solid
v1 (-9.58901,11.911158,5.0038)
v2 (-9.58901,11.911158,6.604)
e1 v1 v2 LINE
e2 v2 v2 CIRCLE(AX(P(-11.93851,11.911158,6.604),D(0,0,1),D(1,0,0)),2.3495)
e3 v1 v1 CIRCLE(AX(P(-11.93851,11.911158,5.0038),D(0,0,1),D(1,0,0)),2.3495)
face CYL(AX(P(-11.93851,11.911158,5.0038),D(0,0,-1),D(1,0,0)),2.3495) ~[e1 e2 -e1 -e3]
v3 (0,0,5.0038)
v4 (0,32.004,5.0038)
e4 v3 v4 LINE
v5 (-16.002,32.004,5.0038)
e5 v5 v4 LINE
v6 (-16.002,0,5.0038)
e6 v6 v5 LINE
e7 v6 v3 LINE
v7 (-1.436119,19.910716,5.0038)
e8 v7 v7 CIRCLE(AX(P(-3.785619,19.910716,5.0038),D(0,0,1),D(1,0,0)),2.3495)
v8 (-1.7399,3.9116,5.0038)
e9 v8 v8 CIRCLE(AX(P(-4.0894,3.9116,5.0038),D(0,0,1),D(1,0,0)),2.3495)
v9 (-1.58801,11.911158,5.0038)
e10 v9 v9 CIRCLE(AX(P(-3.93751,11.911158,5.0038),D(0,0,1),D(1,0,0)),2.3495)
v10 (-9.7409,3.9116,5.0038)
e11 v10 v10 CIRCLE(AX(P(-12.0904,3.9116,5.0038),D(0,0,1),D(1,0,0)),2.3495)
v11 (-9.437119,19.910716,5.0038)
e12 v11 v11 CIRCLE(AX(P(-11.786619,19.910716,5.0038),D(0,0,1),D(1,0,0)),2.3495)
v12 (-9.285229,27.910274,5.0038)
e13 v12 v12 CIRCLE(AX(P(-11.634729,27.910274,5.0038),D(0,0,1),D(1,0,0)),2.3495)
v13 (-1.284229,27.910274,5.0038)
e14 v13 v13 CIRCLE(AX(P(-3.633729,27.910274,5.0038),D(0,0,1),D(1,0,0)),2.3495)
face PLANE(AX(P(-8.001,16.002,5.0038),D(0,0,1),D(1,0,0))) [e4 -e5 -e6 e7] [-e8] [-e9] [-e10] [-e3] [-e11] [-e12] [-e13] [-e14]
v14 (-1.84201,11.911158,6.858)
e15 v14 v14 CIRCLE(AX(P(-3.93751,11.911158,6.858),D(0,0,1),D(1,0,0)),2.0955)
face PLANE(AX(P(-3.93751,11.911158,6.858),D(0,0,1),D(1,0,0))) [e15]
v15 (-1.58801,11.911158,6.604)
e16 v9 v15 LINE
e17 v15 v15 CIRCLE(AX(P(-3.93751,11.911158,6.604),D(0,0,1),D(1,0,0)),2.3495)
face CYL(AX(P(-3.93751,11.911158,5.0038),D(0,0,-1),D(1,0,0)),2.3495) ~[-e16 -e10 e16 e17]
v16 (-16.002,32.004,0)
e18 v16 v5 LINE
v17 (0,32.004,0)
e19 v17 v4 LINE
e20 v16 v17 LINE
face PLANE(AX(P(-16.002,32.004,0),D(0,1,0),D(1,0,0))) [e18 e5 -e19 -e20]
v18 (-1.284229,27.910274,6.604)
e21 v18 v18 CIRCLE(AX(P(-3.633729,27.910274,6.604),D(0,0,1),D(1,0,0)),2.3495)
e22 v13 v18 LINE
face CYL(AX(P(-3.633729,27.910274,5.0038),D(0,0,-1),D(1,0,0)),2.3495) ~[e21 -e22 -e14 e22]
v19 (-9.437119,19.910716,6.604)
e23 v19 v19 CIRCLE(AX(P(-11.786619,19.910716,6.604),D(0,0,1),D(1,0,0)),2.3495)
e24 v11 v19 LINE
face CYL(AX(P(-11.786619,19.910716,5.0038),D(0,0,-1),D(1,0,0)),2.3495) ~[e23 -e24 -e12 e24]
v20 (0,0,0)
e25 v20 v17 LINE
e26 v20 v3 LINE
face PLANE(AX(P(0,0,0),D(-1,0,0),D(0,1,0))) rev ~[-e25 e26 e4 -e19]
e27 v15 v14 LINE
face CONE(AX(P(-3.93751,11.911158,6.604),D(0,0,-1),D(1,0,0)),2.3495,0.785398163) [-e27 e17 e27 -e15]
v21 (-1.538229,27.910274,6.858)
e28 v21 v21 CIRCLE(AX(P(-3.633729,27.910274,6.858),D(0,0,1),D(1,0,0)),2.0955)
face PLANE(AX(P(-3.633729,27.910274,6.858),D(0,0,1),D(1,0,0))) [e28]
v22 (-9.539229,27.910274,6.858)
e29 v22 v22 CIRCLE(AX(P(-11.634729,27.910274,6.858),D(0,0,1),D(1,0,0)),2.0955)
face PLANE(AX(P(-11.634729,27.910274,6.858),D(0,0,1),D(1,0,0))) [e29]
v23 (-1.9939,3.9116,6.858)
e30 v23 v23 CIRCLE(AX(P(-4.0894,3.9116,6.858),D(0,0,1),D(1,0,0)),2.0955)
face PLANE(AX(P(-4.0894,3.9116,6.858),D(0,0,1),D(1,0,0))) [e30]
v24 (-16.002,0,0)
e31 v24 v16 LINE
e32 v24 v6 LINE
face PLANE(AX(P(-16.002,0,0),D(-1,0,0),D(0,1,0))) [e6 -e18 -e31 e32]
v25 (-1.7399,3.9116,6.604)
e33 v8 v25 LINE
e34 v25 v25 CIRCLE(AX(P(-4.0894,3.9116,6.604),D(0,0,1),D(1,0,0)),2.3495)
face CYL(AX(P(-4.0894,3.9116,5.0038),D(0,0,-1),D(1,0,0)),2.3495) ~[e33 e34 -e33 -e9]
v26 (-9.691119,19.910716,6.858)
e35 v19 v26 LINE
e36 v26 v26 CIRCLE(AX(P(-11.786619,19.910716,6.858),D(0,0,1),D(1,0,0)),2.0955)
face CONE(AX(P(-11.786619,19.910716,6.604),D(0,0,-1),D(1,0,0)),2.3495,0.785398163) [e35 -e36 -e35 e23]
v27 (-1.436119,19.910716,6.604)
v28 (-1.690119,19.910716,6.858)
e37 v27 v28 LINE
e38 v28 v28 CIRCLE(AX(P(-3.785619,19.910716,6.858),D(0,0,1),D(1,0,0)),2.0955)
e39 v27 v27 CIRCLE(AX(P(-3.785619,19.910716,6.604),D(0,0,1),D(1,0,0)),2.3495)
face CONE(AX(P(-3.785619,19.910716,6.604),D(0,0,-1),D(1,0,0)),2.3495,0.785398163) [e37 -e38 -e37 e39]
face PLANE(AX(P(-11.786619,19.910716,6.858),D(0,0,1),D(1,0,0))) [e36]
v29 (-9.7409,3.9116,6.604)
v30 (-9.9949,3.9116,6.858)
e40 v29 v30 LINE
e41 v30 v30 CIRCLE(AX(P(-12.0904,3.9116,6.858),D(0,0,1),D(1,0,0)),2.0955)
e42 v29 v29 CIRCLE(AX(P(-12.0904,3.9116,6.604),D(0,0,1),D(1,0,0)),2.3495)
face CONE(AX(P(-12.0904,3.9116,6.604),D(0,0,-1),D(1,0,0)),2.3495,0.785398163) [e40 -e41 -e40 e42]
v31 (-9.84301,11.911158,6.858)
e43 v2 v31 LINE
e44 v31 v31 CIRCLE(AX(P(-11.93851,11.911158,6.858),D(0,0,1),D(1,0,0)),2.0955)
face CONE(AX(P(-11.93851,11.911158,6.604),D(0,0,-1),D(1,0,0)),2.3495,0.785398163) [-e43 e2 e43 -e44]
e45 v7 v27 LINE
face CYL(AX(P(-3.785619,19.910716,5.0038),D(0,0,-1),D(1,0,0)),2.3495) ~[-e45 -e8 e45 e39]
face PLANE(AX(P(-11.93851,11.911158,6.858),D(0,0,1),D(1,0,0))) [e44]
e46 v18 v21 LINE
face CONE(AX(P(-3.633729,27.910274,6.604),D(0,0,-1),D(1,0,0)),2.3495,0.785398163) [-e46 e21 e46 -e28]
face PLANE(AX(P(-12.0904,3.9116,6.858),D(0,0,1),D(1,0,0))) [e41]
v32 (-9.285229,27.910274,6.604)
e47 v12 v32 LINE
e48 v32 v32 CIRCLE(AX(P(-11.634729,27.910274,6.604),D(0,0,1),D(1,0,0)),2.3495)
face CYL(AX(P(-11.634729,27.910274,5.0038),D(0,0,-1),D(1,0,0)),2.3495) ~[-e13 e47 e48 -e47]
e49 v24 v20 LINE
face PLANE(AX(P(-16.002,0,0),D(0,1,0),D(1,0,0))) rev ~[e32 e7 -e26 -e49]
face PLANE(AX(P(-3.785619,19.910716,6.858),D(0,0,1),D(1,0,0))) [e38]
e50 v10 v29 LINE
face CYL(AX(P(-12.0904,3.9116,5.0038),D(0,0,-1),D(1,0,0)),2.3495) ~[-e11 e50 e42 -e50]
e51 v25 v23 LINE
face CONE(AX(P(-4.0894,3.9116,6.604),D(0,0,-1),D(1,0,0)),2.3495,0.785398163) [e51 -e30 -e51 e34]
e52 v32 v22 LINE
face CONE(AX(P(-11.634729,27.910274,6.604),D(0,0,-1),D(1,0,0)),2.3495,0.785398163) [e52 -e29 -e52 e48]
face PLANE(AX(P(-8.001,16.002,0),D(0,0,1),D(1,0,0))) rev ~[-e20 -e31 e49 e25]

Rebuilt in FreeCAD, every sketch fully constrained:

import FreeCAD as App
import Part
import Sketcher

V = App.Vector
Q = App.Units.Quantity


def edges_at(feature, points):
    """Names of the edges that pass closest to the given points."""
    edges = feature.Shape.Edges
    near = lambda p: min(range(len(edges)), key=lambda i: edges[i].distToShape(Part.Vertex(*p))[0])
    return sorted({f"Edge{near(p) + 1}" for p in points})

doc = App.newDocument("Part")
body = doc.addObject("PartDesign::Body", "Body")

# Sketch on XY plane
sketch1 = body.newObject("Sketcher::SketchObject", "Sketch")
sketch1.AttachmentSupport = (doc.getObject("XY_Plane"), [""])
sketch1.MapMode = "FlatFace"
sketch1.addGeometry([
    Part.LineSegment(V(-16, 32, 0), V(-16, 0, 0)),
    Part.LineSegment(V(-16, 0, 0), V(0, 0, 0)),
    Part.LineSegment(V(0, 0, 0), V(0, 32, 0)),
    Part.LineSegment(V(0, 32, 0), V(-16, 32, 0)),
], False)
sketch1.addConstraint([
    Sketcher.Constraint("Coincident", 0, 2, 1, 1),
    Sketcher.Constraint("Coincident", 1, 2, 2, 1),
    Sketcher.Constraint("Coincident", 2, 2, 3, 1),
    Sketcher.Constraint("Coincident", 3, 2, 0, 1),
    Sketcher.Constraint("Vertical", 0),
    Sketcher.Constraint("Horizontal", 1),
    Sketcher.Constraint("Vertical", 2),
    Sketcher.Constraint("Horizontal", 3),
    Sketcher.Constraint("Coincident", 1, 2, -1, 1),
    Sketcher.Constraint("DistanceX", 1, 1, 1, 2, Q("0.63 in")),
    Sketcher.Constraint("DistanceY", 0, 2, 0, 1, Q("1.26 in")),
])
pad1 = body.newObject("PartDesign::Pad", "Pad")
pad1.Profile = sketch1
pad1.Length = Q("0.197 in")

# Sketch on XY plane
sketch2 = body.newObject("Sketcher::SketchObject", "Sketch001")
sketch2.AttachmentSupport = (doc.getObject("XY_Plane"), [""])
sketch2.MapMode = "FlatFace"
sketch2.AttachmentOffset = App.Placement(V(0, 0, 0.197 * 25.4), App.Rotation())
sketch2.addGeometry([
    Part.Circle(V(-12.1, 3.9, 0), V(0, 0, 1), 2.3),  # 0
    Part.Circle(V(-11.9, 11.9, 0), V(0, 0, 1), 2.3),  # 1
    Part.Circle(V(-11.6, 27.9, 0), V(0, 0, 1), 2.3),  # 2
    Part.Circle(V(-4.1, 3.9, 0), V(0, 0, 1), 2.3),  # 3
    Part.Circle(V(-3.9, 11.9, 0), V(0, 0, 1), 2.3),  # 4
    Part.Circle(V(-3.8, 19.9, 0), V(0, 0, 1), 2.3),  # 5
    Part.Circle(V(-11.8, 19.9, 0), V(0, 0, 1), 2.3),  # 6
    Part.Circle(V(-3.6, 27.9, 0), V(0, 0, 1), 2.3),  # 7
], False)
sketch2.addConstraint([
    Sketcher.Constraint("Equal", 0, 1),
    Sketcher.Constraint("Equal", 1, 2),
    Sketcher.Constraint("Equal", 2, 3),
    Sketcher.Constraint("Equal", 3, 4),
    Sketcher.Constraint("Equal", 4, 5),
    Sketcher.Constraint("Equal", 5, 6),
    Sketcher.Constraint("Equal", 6, 7),
    Sketcher.Constraint("Horizontal", 0, 3, 3, 3),
    Sketcher.Constraint("Horizontal", 1, 3, 4, 3),
    Sketcher.Constraint("Horizontal", 5, 3, 6, 3),
    Sketcher.Constraint("Horizontal", 2, 3, 7, 3),
    Sketcher.Constraint("Diameter", 0, Q("0.185 in")),
    Sketcher.Constraint("DistanceX", 0, 3, -1, 1, Q("0.476 in")),
    Sketcher.Constraint("DistanceY", -1, 1, 0, 3, Q("0.154 in")),
    Sketcher.Constraint("DistanceX", 3, 3, -1, 1, Q("0.161 in")),
    Sketcher.Constraint("DistanceX", 1, 3, 4, 3, Q("0.315 in")),
    Sketcher.Constraint("DistanceX", 6, 3, 5, 3, Q("0.315 in")),
    Sketcher.Constraint("DistanceX", 2, 3, 7, 3, Q("0.315 in")),
    Sketcher.Constraint("DistanceX", 1, 3, -1, 1, Q("11.93851 mm")),
    Sketcher.Constraint("DistanceX", 2, 3, -1, 1, Q("11.634729 mm")),
    Sketcher.Constraint("DistanceX", 5, 3, -1, 1, Q("3.785619 mm")),
    Sketcher.Constraint("DistanceY", 0, 3, 1, 3, Q("7.999558 mm")),
    Sketcher.Constraint("DistanceY", 4, 3, 5, 3, Q("7.999558 mm")),
    Sketcher.Constraint("DistanceY", 5, 3, 2, 3, Q("7.999558 mm")),
])
pad2 = body.newObject("PartDesign::Pad", "Pad001")
pad2.Profile = sketch2
pad2.Length = Q("0.073 in")
doc.recompute()

chamfer = body.newObject("PartDesign::Chamfer", "Chamfer")
chamfer.Base = (pad2, edges_at(pad2, [
    (-14.44, 3.912, 6.858),
    (-14.288, 11.911, 6.858),
    (-14.136, 19.911, 6.858),
    (-13.984, 27.91, 6.858),
    (-5.983, 27.91, 6.858),
    (-6.135, 19.911, 6.858),
    (-6.287, 11.911, 6.858),
    (-6.439, 3.912, 6.858),
]))
chamfer.Size = Q("0.01 in")

doc.recompute()
